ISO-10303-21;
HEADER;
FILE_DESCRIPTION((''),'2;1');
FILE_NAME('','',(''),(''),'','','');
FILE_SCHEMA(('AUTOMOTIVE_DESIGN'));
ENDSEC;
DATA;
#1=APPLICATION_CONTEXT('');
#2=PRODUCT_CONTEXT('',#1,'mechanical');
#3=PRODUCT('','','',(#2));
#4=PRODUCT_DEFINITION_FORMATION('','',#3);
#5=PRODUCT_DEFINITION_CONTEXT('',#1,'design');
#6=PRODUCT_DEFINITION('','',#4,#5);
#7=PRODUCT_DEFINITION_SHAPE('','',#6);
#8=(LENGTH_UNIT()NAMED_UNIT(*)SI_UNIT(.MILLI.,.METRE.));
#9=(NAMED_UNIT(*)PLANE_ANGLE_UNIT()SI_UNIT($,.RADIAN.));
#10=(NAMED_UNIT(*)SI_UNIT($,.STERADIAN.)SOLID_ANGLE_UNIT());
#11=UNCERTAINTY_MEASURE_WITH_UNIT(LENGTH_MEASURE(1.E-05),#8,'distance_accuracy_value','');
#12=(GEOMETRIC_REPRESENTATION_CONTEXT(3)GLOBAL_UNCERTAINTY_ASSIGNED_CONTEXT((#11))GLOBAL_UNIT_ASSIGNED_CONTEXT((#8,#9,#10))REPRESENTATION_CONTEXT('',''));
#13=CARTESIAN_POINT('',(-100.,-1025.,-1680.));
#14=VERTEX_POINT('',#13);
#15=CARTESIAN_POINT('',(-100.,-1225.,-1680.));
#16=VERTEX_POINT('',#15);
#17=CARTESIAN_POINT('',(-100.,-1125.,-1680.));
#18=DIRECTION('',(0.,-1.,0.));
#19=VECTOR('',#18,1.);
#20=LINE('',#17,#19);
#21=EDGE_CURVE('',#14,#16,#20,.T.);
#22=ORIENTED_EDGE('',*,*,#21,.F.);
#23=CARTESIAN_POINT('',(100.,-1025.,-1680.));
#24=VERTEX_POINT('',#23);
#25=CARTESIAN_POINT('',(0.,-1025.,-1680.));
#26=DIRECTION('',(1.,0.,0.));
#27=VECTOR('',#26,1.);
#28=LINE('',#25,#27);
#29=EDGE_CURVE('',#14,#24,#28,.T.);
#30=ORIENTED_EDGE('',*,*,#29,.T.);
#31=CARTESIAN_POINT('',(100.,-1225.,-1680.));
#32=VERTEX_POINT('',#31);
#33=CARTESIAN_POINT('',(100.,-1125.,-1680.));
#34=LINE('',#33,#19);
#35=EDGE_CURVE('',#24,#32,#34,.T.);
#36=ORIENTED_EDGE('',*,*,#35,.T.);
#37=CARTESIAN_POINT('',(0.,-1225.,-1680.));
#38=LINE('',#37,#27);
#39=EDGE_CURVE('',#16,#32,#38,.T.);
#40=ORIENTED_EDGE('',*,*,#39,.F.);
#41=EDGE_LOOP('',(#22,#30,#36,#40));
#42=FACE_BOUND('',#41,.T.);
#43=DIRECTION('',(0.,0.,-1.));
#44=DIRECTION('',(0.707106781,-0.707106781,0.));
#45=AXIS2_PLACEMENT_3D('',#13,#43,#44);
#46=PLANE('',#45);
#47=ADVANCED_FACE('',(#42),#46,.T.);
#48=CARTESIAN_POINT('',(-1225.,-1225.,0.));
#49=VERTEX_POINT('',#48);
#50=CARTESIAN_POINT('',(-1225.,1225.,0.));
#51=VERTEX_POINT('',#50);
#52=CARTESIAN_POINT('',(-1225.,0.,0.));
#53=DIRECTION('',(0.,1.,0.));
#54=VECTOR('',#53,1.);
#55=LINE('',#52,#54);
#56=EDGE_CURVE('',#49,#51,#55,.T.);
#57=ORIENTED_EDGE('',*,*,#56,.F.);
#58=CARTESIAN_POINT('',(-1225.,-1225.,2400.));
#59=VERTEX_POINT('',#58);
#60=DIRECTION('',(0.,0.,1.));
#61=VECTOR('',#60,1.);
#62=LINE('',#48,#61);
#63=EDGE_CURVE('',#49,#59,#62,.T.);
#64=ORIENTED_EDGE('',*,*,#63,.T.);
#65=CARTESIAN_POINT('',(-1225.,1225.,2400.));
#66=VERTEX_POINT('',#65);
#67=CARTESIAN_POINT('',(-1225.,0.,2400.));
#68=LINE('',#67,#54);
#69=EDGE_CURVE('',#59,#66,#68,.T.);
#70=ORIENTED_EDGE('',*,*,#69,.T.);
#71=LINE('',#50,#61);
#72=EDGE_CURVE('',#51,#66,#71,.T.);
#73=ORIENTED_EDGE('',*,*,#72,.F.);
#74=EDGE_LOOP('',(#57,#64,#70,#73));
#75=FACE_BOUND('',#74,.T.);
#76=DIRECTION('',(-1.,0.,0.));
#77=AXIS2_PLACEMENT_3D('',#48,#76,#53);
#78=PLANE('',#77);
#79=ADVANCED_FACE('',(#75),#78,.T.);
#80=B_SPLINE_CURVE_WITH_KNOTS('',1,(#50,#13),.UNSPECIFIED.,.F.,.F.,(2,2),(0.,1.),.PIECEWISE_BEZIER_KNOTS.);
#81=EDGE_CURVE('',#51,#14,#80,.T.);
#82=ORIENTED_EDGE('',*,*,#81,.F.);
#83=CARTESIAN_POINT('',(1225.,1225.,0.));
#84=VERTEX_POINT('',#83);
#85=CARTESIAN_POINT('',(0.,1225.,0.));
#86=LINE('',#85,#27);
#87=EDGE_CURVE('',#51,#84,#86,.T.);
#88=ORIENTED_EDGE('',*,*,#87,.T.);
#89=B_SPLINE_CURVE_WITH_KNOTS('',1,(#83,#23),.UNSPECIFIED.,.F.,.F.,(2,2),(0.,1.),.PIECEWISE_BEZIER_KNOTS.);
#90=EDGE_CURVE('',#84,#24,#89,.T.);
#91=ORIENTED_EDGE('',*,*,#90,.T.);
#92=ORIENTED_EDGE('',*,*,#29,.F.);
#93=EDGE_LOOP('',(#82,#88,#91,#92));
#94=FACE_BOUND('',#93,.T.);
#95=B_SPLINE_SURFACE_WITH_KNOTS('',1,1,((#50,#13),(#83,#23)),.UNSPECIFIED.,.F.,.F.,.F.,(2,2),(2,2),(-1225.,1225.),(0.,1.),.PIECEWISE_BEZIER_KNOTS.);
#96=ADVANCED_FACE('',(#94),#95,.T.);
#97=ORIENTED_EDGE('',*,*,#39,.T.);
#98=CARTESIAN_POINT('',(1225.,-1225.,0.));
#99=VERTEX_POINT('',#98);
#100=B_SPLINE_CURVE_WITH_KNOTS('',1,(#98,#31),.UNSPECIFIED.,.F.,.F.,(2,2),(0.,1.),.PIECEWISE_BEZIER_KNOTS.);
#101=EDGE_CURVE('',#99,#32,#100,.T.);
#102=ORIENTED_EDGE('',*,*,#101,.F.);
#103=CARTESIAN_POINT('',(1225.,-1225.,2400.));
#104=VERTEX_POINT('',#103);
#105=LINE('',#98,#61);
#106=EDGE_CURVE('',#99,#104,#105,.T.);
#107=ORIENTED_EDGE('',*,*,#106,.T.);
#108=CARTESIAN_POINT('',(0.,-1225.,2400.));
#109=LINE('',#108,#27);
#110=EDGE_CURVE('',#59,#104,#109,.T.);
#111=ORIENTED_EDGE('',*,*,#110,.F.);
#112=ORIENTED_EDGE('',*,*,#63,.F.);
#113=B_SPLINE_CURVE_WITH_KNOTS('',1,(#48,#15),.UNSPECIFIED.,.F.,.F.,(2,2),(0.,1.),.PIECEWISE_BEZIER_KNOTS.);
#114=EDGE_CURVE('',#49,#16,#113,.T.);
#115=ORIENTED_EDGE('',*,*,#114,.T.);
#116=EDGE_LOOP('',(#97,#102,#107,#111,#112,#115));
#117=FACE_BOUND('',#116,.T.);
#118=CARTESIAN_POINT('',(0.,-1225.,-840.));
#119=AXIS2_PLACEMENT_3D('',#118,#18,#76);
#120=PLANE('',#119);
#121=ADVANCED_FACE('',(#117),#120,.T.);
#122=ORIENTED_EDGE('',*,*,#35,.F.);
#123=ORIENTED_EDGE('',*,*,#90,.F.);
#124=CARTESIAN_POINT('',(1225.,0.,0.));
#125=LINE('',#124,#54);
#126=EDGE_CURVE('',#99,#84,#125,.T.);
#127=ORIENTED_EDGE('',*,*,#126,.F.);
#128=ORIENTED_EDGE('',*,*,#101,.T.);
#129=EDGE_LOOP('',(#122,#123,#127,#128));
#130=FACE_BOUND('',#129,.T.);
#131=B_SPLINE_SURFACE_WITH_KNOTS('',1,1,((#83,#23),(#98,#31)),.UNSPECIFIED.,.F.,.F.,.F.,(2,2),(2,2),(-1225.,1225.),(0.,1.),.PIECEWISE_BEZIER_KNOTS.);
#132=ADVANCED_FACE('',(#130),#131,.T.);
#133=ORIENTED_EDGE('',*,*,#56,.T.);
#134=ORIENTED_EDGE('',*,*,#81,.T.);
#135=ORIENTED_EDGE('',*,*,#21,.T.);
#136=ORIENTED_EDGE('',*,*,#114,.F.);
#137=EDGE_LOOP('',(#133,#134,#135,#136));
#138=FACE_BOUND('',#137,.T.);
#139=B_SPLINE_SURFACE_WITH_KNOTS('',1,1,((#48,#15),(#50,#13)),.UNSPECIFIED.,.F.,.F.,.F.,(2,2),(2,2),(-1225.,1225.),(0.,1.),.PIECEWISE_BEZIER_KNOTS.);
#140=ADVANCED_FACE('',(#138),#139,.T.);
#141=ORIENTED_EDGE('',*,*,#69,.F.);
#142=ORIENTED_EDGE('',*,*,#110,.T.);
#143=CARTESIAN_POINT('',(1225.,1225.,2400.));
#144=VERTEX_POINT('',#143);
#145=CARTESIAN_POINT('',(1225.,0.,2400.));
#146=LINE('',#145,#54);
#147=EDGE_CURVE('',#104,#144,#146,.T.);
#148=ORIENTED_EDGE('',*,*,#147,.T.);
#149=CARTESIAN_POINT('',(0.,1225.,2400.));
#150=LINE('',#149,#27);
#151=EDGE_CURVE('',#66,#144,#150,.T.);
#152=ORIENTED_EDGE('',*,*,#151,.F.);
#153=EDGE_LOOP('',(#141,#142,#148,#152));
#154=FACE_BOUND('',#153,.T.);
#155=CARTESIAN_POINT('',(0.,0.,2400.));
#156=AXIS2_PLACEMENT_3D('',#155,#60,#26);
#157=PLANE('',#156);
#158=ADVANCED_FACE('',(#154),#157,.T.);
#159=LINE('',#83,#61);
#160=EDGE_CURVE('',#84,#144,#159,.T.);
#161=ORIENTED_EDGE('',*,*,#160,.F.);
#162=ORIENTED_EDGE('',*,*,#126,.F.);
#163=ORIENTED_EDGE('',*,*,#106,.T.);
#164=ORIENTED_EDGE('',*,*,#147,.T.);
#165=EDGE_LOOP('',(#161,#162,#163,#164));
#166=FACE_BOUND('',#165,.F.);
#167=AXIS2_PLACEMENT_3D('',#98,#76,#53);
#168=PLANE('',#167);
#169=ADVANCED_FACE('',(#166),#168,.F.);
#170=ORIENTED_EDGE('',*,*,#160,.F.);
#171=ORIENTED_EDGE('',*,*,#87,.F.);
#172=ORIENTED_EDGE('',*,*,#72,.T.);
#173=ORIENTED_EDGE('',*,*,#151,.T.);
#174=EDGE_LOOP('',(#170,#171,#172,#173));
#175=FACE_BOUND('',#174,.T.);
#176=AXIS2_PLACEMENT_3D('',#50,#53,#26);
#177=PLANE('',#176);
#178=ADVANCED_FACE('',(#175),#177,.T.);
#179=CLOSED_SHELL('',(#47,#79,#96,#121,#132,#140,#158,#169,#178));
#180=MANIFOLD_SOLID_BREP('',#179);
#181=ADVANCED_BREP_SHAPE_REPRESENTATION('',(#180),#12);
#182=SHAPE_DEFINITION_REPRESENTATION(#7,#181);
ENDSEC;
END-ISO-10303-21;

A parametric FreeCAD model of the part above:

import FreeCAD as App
import Part
import Sketcher
from FreeCAD import Vector
Q = App.Units.Quantity

doc = App.newDocument("Part")
body = doc.addObject("PartDesign::Body", "Body")

sketch1 = body.newObject("Sketcher::SketchObject", "Sketch")
sketch1.AttachmentSupport = (doc.getObject("XY_Plane"), [""])
sketch1.MapMode = "FlatFace"
sketch1.addGeometry([
    Part.LineSegment(Vector(-1225, 1225, 0), Vector(-1225, -1225, 0)),
    Part.LineSegment(Vector(-1225, -1225, 0), Vector(1225, -1225, 0)),
    Part.LineSegment(Vector(1225, -1225, 0), Vector(1225, 1225, 0)),
    Part.LineSegment(Vector(1225, 1225, 0), Vector(-1225, 1225, 0)),
], False)
sketch1.addConstraint([
    Sketcher.Constraint("Coincident", 0, 2, 1, 1),
    Sketcher.Constraint("Coincident", 1, 2, 2, 1),
    Sketcher.Constraint("Coincident", 2, 2, 3, 1),
    Sketcher.Constraint("Coincident", 3, 2, 0, 1),
    Sketcher.Constraint("Vertical", 0),
    Sketcher.Constraint("Horizontal", 1),
    Sketcher.Constraint("Vertical", 2),
    Sketcher.Constraint("Horizontal", 3),
    Sketcher.Constraint("Symmetric", 0, 2, 2, 2, -1, 1),
    Sketcher.Constraint("Equal", 3, 0),
    Sketcher.Constraint("DistanceX", 1, 1, 1, 2, Q("2450 mm")),
])
pad1 = body.newObject("PartDesign::Pad", "Pad")
pad1.Profile = sketch1
pad1.Length = 2400

sketch2 = body.newObject("Sketcher::SketchObject", "Sketch001")
sketch2.AttachmentSupport = (doc.getObject("XY_Plane"), [""])
sketch2.MapMode = "FlatFace"
sketch2.addGeometry([
    Part.LineSegment(Vector(-1225, -1225, 0), Vector(-1225, 1225, 0)),
    Part.LineSegment(Vector(-1225, 1225, 0), Vector(1225, 1225, 0)),
    Part.LineSegment(Vector(1225, 1225, 0), Vector(1225, -1225, 0)),
    Part.LineSegment(Vector(1225, -1225, 0), Vector(-1225, -1225, 0)),
], False)
sketch2.addConstraint([
    Sketcher.Constraint("Coincident", 0, 2, 1, 1),
    Sketcher.Constraint("Coincident", 1, 2, 2, 1),
    Sketcher.Constraint("Coincident", 2, 2, 3, 1),
    Sketcher.Constraint("Coincident", 3, 2, 0, 1),
    Sketcher.Constraint("Vertical", 0),
    Sketcher.Constraint("Horizontal", 1),
    Sketcher.Constraint("Vertical", 2),
    Sketcher.Constraint("Horizontal", 3),
    Sketcher.Constraint("Symmetric", 0, 2, 2, 2, -1, 1),
    Sketcher.Constraint("Equal", 3, 0),
    Sketcher.Constraint("DistanceX", 1, 1, 1, 2, Q("2450 mm")),
])

sketch3 = body.newObject("Sketcher::SketchObject", "Sketch002")
sketch3.AttachmentSupport = (doc.getObject("XY_Plane"), [""])
sketch3.MapMode = "FlatFace"
sketch3.AttachmentOffset = App.Placement(Vector(0, 0, -1680), App.Rotation())
sketch3.addGeometry([
    Part.LineSegment(Vector(-100, -1225, 0), Vector(-100, -1025, 0)),
    Part.LineSegment(Vector(-100, -1025, 0), Vector(100, -1025, 0)),
    Part.LineSegment(Vector(100, -1025, 0), Vector(100, -1225, 0)),
    Part.LineSegment(Vector(100, -1225, 0), Vector(-100, -1225, 0)),
], False)
sketch3.addConstraint([
    Sketcher.Constraint("Coincident", 0, 2, 1, 1),
    Sketcher.Constraint("Coincident", 1, 2, 2, 1),
    Sketcher.Constraint("Coincident", 2, 2, 3, 1),
    Sketcher.Constraint("Coincident", 3, 2, 0, 1),
    Sketcher.Constraint("Vertical", 0),
    Sketcher.Constraint("Horizontal", 1),
    Sketcher.Constraint("Vertical", 2),
    Sketcher.Constraint("Horizontal", 3),
    Sketcher.Constraint("Equal", 3, 0),
    Sketcher.Constraint("DistanceX", 1, 1, 1, 2, Q("200 mm")),
    Sketcher.Constraint("DistanceX", 0, 2, -1, 1, Q("100 mm")),
    Sketcher.Constraint("DistanceY", 0, 2, -1, 1, Q("1025 mm")),
])

additiveloft = body.newObject("PartDesign::AdditiveLoft", "AdditiveLoft")
additiveloft.Profile = sketch2
additiveloft.Sections = [sketch3]
body2 = doc.addObject("PartDesign::Body", "Body001")

sketch4 = body2.newObject("Sketcher::SketchObject", "Sketch003")
sketch4.AttachmentSupport = (doc.getObject("XY_Plane001"), [""])
sketch4.MapMode = "FlatFace"
sketch4.addGeometry([
    Part.LineSegment(Vector(-1225, -1225, 0), Vector(-1225, 1225, 0)),
    Part.LineSegment(Vector(-1225, 1225, 0), Vector(1225, 1225, 0)),
    Part.LineSegment(Vector(1225, 1225, 0), Vector(1225, -1225, 0)),
    Part.LineSegment(Vector(1225, -1225, 0), Vector(-1225, -1225, 0)),
], False)
sketch4.addConstraint([
    Sketcher.Constraint("Coincident", 0, 2, 1, 1),
    Sketcher.Constraint("Coincident", 1, 2, 2, 1),
    Sketcher.Constraint("Coincident", 2, 2, 3, 1),
    Sketcher.Constraint("Coincident", 3, 2, 0, 1),
    Sketcher.Constraint("Vertical", 0),
    Sketcher.Constraint("Horizontal", 1),
    Sketcher.Constraint("Vertical", 2),
    Sketcher.Constraint("Horizontal", 3),
    Sketcher.Constraint("Symmetric", 0, 2, 2, 2, -1, 1),
    Sketcher.Constraint("Equal", 3, 0),
    Sketcher.Constraint("DistanceX", 1, 1, 1, 2, Q("2450 mm")),
])
pad2 = body2.newObject("PartDesign::Pad", "Pad001")
pad2.Profile = sketch4
pad2.Length = 400
pad2.Reversed = True
body3 = doc.addObject("PartDesign::Body", "Body002")

sketch5 = body3.newObject("Sketcher::SketchObject", "Sketch004")
sketch5.AttachmentSupport = (doc.getObject("XY_Plane002"), [""])
sketch5.MapMode = "FlatFace"
sketch5.AttachmentOffset = App.Placement(Vector(0, 0, -400), App.Rotation())
sketch5.addGeometry([
    Part.LineSegment(Vector(-1225, -1225, 0), Vector(-1225, 1225, 0)),
    Part.LineSegment(Vector(-1225, 1225, 0), Vector(1225, 1225, 0)),
    Part.LineSegment(Vector(1225, 1225, 0), Vector(1225, -1225, 0)),
    Part.LineSegment(Vector(1225, -1225, 0), Vector(-1225, -1225, 0)),
], False)
sketch5.addConstraint([
    Sketcher.Constraint("Coincident", 0, 2, 1, 1),
    Sketcher.Constraint("Coincident", 1, 2, 2, 1),
    Sketcher.Constraint("Coincident", 2, 2, 3, 1),
    Sketcher.Constraint("Coincident", 3, 2, 0, 1),
    Sketcher.Constraint("Vertical", 0),
    Sketcher.Constraint("Horizontal", 1),
    Sketcher.Constraint("Vertical", 2),
    Sketcher.Constraint("Horizontal", 3),
    Sketcher.Constraint("Symmetric", 0, 2, 2, 2, -1, 1),
    Sketcher.Constraint("Equal", 3, 0),
    Sketcher.Constraint("DistanceX", 1, 1, 1, 2, Q("2450 mm")),
])
pad3 = body3.newObject("PartDesign::Pad", "Pad002")
pad3.Profile = sketch5
pad3.Length = 400
pad3.Reversed = True
body2.Visibility = False
body3.Visibility = False

doc.recompute()
